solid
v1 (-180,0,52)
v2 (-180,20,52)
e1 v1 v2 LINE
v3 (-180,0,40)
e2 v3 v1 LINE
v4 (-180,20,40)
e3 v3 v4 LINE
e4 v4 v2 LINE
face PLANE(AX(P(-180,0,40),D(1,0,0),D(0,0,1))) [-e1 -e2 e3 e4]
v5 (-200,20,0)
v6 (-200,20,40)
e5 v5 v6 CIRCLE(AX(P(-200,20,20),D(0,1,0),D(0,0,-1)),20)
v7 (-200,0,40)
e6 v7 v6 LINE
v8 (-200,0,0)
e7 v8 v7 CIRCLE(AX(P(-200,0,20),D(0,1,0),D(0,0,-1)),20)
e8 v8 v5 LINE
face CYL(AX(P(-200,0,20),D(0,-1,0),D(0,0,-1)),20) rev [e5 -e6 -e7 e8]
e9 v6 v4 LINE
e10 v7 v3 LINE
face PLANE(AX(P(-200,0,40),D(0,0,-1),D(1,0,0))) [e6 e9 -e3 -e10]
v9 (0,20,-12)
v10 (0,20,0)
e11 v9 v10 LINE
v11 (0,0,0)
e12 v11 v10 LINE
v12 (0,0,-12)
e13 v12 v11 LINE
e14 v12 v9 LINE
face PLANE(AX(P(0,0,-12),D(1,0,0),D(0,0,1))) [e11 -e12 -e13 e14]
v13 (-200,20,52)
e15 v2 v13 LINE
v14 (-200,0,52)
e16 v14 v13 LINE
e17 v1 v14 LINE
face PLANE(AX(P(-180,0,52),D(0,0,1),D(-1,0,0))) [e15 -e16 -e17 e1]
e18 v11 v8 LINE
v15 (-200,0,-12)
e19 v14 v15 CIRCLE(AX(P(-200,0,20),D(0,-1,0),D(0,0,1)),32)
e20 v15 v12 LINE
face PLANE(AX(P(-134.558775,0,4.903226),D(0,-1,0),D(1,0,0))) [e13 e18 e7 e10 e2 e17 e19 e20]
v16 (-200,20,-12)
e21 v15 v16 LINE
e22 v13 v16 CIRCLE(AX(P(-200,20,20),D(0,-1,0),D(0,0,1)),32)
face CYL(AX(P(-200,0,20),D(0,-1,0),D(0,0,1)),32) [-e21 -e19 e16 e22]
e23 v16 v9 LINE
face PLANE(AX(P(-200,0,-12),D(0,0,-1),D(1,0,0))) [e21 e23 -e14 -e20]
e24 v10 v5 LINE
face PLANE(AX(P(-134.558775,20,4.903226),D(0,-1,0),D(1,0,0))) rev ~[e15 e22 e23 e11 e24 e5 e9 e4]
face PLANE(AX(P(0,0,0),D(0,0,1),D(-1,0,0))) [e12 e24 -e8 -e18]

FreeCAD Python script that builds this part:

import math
import FreeCAD as App
import Part
import Sketcher
from FreeCAD import Vector

doc = App.newDocument("Part")
body = doc.addObject("PartDesign::Body", "Body")

sketch1 = doc.addObject("Sketcher::SketchObject", "Sketch")
body.addObject(sketch1)
sketch1.AttachmentSupport = (doc.XZ_Plane, [""])
sketch1.MapMode = "FlatFace"
sketch1.addGeometry([
    Part.LineSegment(Vector(0, -12, 0), Vector(0, 0, 0)),
    Part.LineSegment(Vector(0, 0, 0), Vector(-200, 0, 0)),
    Part.ArcOfCircle(Part.Circle(Vector(-200, 20, 0), Vector(0, 0, 1), 20), math.radians(90), math.radians(270)),
    Part.LineSegment(Vector(-200, 40, 0), Vector(-180, 40, 0)),
    Part.LineSegment(Vector(-180, 40, 0), Vector(-180, 52, 0)),
    Part.LineSegment(Vector(-180, 52, 0), Vector(-200, 52, 0)),
    Part.ArcOfCircle(Part.Circle(Vector(-200, 20, 0), Vector(0, 0, 1), 32), math.radians(90), math.radians(270)),
    Part.LineSegment(Vector(-200, -12, 0), Vector(0, -12, 0)),
], False)
sketch1.addConstraint([
    Sketcher.Constraint("Coincident", 0, 2, 1, 1),
    Sketcher.Constraint("Tangent", 1, 2, 2, 2),
    Sketcher.Constraint("Tangent", 2, 1, 3, 1),
    Sketcher.Constraint("Coincident", 3, 2, 4, 1),
    Sketcher.Constraint("Coincident", 4, 2, 5, 1),
    Sketcher.Constraint("Tangent", 5, 2, 6, 1),
    Sketcher.Constraint("Tangent", 6, 2, 7, 1),
    Sketcher.Constraint("Coincident", 7, 2, 0, 1),
    Sketcher.Constraint("Vertical", 0),
    Sketcher.Constraint("Horizontal", 1),
    Sketcher.Constraint("Horizontal", 3),
    Sketcher.Constraint("Vertical", 4),
    Sketcher.Constraint("Horizontal", 5),
    Sketcher.Constraint("Horizontal", 7),
    Sketcher.Constraint("Coincident", 0, 2, -1, 1),
    Sketcher.Constraint("Coincident", 6, 3, 2, 3),
    Sketcher.Constraint("Radius", 2, 20.0),
    Sketcher.Constraint("Radius", 6, 32.0),
    Sketcher.Constraint("DistanceX", 1, 2, 1, 1, 200.0),
    Sketcher.Constraint("DistanceX", 3, 1, 3, 2, 20.0),
])
pad1 = doc.addObject("PartDesign::Pad", "Pad")
body.addObject(pad1)
pad1.Profile = sketch1
pad1.Length = 20
pad1.Reversed = True

doc.recompute()
